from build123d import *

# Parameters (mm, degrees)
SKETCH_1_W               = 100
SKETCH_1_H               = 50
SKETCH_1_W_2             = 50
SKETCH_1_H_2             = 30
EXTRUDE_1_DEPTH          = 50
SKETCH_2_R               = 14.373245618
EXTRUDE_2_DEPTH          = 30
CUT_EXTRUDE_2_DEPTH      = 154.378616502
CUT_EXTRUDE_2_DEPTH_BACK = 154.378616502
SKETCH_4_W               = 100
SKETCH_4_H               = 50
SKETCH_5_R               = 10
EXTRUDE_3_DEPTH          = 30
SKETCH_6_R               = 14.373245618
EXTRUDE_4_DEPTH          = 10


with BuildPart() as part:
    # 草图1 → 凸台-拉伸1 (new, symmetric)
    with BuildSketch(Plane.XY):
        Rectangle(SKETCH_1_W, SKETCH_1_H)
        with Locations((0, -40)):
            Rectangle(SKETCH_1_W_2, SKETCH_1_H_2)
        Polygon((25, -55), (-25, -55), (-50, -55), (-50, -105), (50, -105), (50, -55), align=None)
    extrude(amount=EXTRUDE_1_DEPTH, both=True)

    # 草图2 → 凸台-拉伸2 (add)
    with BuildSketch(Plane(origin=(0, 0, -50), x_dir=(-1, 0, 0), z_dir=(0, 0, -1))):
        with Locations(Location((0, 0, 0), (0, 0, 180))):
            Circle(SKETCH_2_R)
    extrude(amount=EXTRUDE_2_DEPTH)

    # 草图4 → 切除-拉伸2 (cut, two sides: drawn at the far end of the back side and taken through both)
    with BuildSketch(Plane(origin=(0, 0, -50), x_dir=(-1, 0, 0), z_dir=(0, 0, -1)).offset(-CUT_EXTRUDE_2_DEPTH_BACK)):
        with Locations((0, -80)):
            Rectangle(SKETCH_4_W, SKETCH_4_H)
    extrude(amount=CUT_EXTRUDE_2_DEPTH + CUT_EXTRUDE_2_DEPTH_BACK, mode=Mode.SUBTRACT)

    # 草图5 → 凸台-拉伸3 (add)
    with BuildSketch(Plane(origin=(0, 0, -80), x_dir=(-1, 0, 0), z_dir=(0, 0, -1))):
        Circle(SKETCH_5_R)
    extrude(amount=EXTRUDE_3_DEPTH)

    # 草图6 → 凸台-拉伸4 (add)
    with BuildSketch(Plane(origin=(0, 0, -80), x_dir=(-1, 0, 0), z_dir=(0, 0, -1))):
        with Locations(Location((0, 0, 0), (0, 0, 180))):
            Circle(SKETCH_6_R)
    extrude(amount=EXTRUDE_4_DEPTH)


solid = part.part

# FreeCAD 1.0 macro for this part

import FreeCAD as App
import Part
import Sketcher

doc = App.newDocument("Part")
params = doc.addObject("Spreadsheet::Sheet", "Params")
for row, (alias, value) in enumerate([
    ("sketch1_width", "25 mm"),
    ("sketch1_width2", "100 mm"),
    ("sketch1_height", "50 mm"),
    ("sketch1_height2", "30 mm"),
    ("pad1_length", "100 mm"),
    ("pad2_length", "30 mm"),
    ("sketch3_width", "100 mm"),
    ("sketch3_height", "50 mm"),
    ("sketch4_diameter", "20 mm"),
    ("pad3_length", "30 mm"),
    ("pad4_length", "10 mm"),
], start=1):
    params.set(f"A{row}", alias)
    params.set(f"B{row}", "=" + value)
    params.setAlias(f"B{row}", alias)

body = doc.addObject("PartDesign::Body", "Body")

# Sketch on XY plane
sketch1 = body.newObject("Sketcher::SketchObject", "Sketch")
sketch1.AttachmentSupport = (doc.getObject("XY_Plane"), [""])
sketch1.MapMode = "FlatFace"
sketch1.addGeometry(Part.LineSegment(App.Vector(-50, 25, 0), App.Vector(-50, -25, 0)), False)
sketch1.addGeometry(Part.LineSegment(App.Vector(-50, -25, 0), App.Vector(-25, -25, 0)), False)
sketch1.addGeometry(Part.LineSegment(App.Vector(-25, -25, 0), App.Vector(-25, -55, 0)), False)
sketch1.addGeometry(Part.LineSegment(App.Vector(-25, -55, 0), App.Vector(-50, -55, 0)), False)
sketch1.addGeometry(Part.LineSegment(App.Vector(-50, -55, 0), App.Vector(-50, -105, 0)), False)
sketch1.addGeometry(Part.LineSegment(App.Vector(-50, -105, 0), App.Vector(50, -105, 0)), False)
sketch1.addGeometry(Part.LineSegment(App.Vector(50, -105, 0), App.Vector(50, -55, 0)), False)
sketch1.addGeometry(Part.LineSegment(App.Vector(50, -55, 0), App.Vector(25, -55, 0)), False)
sketch1.addGeometry(Part.LineSegment(App.Vector(25, -55, 0), App.Vector(25, -25, 0)), False)
sketch1.addGeometry(Part.LineSegment(App.Vector(25, -25, 0), App.Vector(50, -25, 0)), False)
sketch1.addGeometry(Part.LineSegment(App.Vector(50, -25, 0), App.Vector(50, 25, 0)), False)
sketch1.addGeometry(Part.LineSegment(App.Vector(50, 25, 0), App.Vector(-50, 25, 0)), False)
sketch1.addConstraint(Sketcher.Constraint("Coincident", 0, 2, 1, 1))
sketch1.addConstraint(Sketcher.Constraint("Coincident", 1, 2, 2, 1))
sketch1.addConstraint(Sketcher.Constraint("Coincident", 2, 2, 3, 1))
sketch1.addConstraint(Sketcher.Constraint("Coincident", 3, 2, 4, 1))
sketch1.addConstraint(Sketcher.Constraint("Coincident", 4, 2, 5, 1))
sketch1.addConstraint(Sketcher.Constraint("Coincident", 5, 2, 6, 1))
sketch1.addConstraint(Sketcher.Constraint("Coincident", 6, 2, 7, 1))
sketch1.addConstraint(Sketcher.Constraint("Coincident", 7, 2, 8, 1))
sketch1.addConstraint(Sketcher.Constraint("Coincident", 8, 2, 9, 1))
sketch1.addConstraint(Sketcher.Constraint("Coincident", 9, 2, 10, 1))
sketch1.addConstraint(Sketcher.Constraint("Coincident", 10, 2, 11, 1))
sketch1.addConstraint(Sketcher.Constraint("Coincident", 11, 2, 0, 1))
sketch1.addConstraint(Sketcher.Constraint("Vertical", 0))
sketch1.addConstraint(Sketcher.Constraint("Horizontal", 1))
sketch1.addConstraint(Sketcher.Constraint("Vertical", 2))
sketch1.addConstraint(Sketcher.Constraint("Horizontal", 3))
sketch1.addConstraint(Sketcher.Constraint("Vertical", 4))
sketch1.addConstraint(Sketcher.Constraint("Horizontal", 5))
sketch1.addConstraint(Sketcher.Constraint("Vertical", 6))
sketch1.addConstraint(Sketcher.Constraint("Horizontal", 7))
sketch1.addConstraint(Sketcher.Constraint("Vertical", 8))
sketch1.addConstraint(Sketcher.Constraint("Horizontal", 9))
sketch1.addConstraint(Sketcher.Constraint("Vertical", 10))
sketch1.addConstraint(Sketcher.Constraint("Horizontal", 11))
sketch1.addConstraint(Sketcher.Constraint("Symmetric", 0, 2, 10, 2, -1, 1))
sketch1.addConstraint(Sketcher.Constraint("Symmetric", 3, 2, 6, 2, -2))
sketch1.addConstraint(Sketcher.Constraint("Symmetric", 1, 2, 8, 2, -2))
sketch1.addConstraint(Sketcher.Constraint("Vertical", 0, 2, 3, 2))
sketch1.addConstraint(Sketcher.Constraint("Equal", 0, 4))
sketch1.addConstraint(Sketcher.Constraint("DistanceX", 1, 1, 1, 2, 25.0))
sketch1.addConstraint(Sketcher.Constraint("DistanceX", 5, 1, 5, 2, 100.0))
sketch1.addConstraint(Sketcher.Constraint("DistanceY", 0, 2, 0, 1, 50.0))
sketch1.addConstraint(Sketcher.Constraint("DistanceY", 2, 2, 2, 1, 30.0))
sketch1.setExpression("Constraints[29]", "Params.sketch1_width")
sketch1.setExpression("Constraints[30]", "Params.sketch1_width2")
sketch1.setExpression("Constraints[31]", "Params.sketch1_height")
sketch1.setExpression("Constraints[32]", "Params.sketch1_height2")
pad1 = body.newObject("PartDesign::Pad", "Pad")
pad1.Profile = sketch1
pad1.setExpression("Length", "Params.pad1_length")
pad1.Midplane = True

# Sketch on XY plane
sketch2 = body.newObject("Sketcher::SketchObject", "Sketch001")
sketch2.AttachmentSupport = (doc.getObject("XY_Plane"), [""])
sketch2.MapMode = "FlatFace"
sketch2.AttachmentOffset = App.Placement(App.Vector(0, 0, -50), App.Rotation())
sketch2.addGeometry(Part.Circle(App.Vector(0, 0, 0), App.Vector(0, 0, 1), 14.373246), False)
sketch2.addConstraint(Sketcher.Constraint("Coincident", 0, 3, -1, 1))
sketch2.addConstraint(Sketcher.Constraint("Diameter", 0, 28.746491))
pad2 = body.newObject("PartDesign::Pad", "Pad001")
pad2.Profile = sketch2
pad2.setExpression("Length", "Params.pad2_length")
pad2.Reversed = True

# Sketch on XY plane
sketch3 = body.newObject("Sketcher::SketchObject", "Sketch002")
sketch3.AttachmentSupport = (doc.getObject("XY_Plane"), [""])
sketch3.MapMode = "FlatFace"
sketch3.AttachmentOffset = App.Placement(App.Vector(0, 0, -50), App.Rotation())
sketch3.addGeometry(Part.LineSegment(App.Vector(50, -55, 0), App.Vector(50, -105, 0)), False)
sketch3.addGeometry(Part.LineSegment(App.Vector(50, -105, 0), App.Vector(-50, -105, 0)), False)
sketch3.addGeometry(Part.LineSegment(App.Vector(-50, -105, 0), App.Vector(-50, -55, 0)), False)
sketch3.addGeometry(Part.LineSegment(App.Vector(-50, -55, 0), App.Vector(50, -55, 0)), False)
sketch3.addConstraint(Sketcher.Constraint("Coincident", 0, 2, 1, 1))
sketch3.addConstraint(Sketcher.Constraint("Coincident", 1, 2, 2, 1))
sketch3.addConstraint(Sketcher.Constraint("Coincident", 2, 2, 3, 1))
sketch3.addConstraint(Sketcher.Constraint("Coincident", 3, 2, 0, 1))
sketch3.addConstraint(Sketcher.Constraint("Vertical", 0))
sketch3.addConstraint(Sketcher.Constraint("Horizontal", 1))
sketch3.addConstraint(Sketcher.Constraint("Vertical", 2))
sketch3.addConstraint(Sketcher.Constraint("Horizontal", 3))
sketch3.addConstraint(Sketcher.Constraint("DistanceX", 1, 2, 1, 1, 100.0))
sketch3.addConstraint(Sketcher.Constraint("DistanceY", 0, 2, 0, 1, 50.0))
sketch3.addConstraint(Sketcher.Constraint("DistanceX", -1, 1, 0, 2, 50.0))
sketch3.addConstraint(Sketcher.Constraint("DistanceY", 0, 2, -1, 1, 105.0))
sketch3.setExpression("Constraints[8]", "Params.sketch3_width")
sketch3.setExpression("Constraints[9]", "Params.sketch3_height")
pocket1 = body.newObject("PartDesign::Pocket", "Pocket")
pocket1.Profile = sketch3
pocket1.Type = "ThroughAll"
pocket1.Midplane = True

# Sketch on XY plane
sketch4 = body.newObject("Sketcher::SketchObject", "Sketch003")
sketch4.AttachmentSupport = (doc.getObject("XY_Plane"), [""])
sketch4.MapMode = "FlatFace"
sketch4.AttachmentOffset = App.Placement(App.Vector(0, 0, -80), App.Rotation())
sketch4.addGeometry(Part.Circle(App.Vector(0, 0, 0), App.Vector(0, 0, 1), 10), False)
sketch4.addConstraint(Sketcher.Constraint("Coincident", 0, 3, -1, 1))
sketch4.addConstraint(Sketcher.Constraint("Diameter", 0, 20.0))
sketch4.setExpression("Constraints[1]", "Params.sketch4_diameter")
pad3 = body.newObject("PartDesign::Pad", "Pad002")
pad3.Profile = sketch4
pad3.setExpression("Length", "Params.pad3_length")
pad3.Reversed = True

# Sketch on XY plane
sketch5 = body.newObject("Sketcher::SketchObject", "Sketch004")
sketch5.AttachmentSupport = (doc.getObject("XY_Plane"), [""])
sketch5.MapMode = "FlatFace"
sketch5.AttachmentOffset = App.Placement(App.Vector(0, 0, -80), App.Rotation())
sketch5.addGeometry(Part.Circle(App.Vector(0, 0, 0), App.Vector(0, 0, 1), 14.373246), False)
sketch5.addConstraint(Sketcher.Constraint("Coincident", 0, 3, -1, 1))
sketch5.addConstraint(Sketcher.Constraint("Diameter", 0, 28.746491))
pad4 = body.newObject("PartDesign::Pad", "Pad003")
pad4.Profile = sketch5
pad4.setExpression("Length", "Params.pad4_length")
pad4.Reversed = True

doc.recompute()
